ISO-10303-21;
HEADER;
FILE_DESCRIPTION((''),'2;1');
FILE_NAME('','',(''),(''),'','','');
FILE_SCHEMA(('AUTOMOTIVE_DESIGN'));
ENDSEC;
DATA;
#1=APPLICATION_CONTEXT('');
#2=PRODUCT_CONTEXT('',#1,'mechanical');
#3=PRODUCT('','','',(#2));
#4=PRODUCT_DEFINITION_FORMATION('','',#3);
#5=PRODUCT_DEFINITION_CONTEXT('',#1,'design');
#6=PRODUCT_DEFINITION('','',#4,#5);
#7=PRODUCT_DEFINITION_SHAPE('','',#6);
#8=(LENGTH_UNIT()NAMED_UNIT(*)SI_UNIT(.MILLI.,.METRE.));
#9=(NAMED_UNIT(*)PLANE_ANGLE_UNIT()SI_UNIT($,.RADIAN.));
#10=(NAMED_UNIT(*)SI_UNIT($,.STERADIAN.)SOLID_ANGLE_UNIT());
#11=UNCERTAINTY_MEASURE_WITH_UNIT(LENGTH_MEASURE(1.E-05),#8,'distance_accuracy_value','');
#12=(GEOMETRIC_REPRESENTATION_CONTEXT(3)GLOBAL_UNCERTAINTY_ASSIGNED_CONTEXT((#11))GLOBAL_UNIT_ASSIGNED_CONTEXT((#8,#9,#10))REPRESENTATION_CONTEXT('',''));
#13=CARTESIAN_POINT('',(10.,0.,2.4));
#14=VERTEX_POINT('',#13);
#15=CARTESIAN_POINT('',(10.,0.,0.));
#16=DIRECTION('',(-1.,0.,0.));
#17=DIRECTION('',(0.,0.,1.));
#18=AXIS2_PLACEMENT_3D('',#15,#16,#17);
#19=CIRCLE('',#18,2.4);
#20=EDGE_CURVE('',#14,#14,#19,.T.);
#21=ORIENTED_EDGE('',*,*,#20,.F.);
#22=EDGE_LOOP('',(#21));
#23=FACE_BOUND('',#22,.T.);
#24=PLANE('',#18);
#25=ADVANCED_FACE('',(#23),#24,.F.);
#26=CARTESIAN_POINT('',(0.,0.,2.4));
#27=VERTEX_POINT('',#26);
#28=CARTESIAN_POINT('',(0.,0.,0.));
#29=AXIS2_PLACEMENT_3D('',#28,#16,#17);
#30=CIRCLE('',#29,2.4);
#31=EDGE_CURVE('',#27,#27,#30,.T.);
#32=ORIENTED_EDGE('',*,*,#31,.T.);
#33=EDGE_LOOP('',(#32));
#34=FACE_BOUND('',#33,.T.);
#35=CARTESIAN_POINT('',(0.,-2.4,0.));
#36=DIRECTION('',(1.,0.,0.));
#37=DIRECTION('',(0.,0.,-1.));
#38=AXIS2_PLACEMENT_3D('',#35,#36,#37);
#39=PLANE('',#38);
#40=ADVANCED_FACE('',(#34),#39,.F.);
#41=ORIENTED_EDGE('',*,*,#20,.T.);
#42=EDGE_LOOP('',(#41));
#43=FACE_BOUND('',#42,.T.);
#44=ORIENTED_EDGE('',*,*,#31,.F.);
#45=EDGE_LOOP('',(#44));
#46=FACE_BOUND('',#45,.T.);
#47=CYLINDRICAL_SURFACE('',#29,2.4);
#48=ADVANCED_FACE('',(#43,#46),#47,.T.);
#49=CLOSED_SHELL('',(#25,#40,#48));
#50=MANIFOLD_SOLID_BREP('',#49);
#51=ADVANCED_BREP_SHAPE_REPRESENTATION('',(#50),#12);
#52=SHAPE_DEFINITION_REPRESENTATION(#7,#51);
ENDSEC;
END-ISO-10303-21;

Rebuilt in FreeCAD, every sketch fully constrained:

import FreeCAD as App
import Part
import Sketcher
Q = App.Units.Quantity


def add_polygon(sketch, points):
    """Adds a closed chain of lines whose ends are joined by coincident constraints."""
    first, n = sketch.GeometryCount, len(points)
    for a, b in zip(points, points[1:] + points[:1]):
        sketch.addGeometry(Part.LineSegment(App.Vector(*a, 0), App.Vector(*b, 0)), False)
    for i in range(n):
        sketch.addConstraint(Sketcher.Constraint("Coincident", first + i, 2, first + (i + 1) % n, 1))

doc = App.newDocument("Part")
body = doc.addObject("PartDesign::Body", "Body")

# Sketch on XY plane
sketch1 = body.newObject("Sketcher::SketchObject", "Sketch")
sketch1.AttachmentSupport = (doc.getObject("XY_Plane"), [""])
sketch1.MapMode = "FlatFace"
add_polygon(sketch1, [(0, 2.4), (0, 0), (10, 0), (10, 2.4)])  # lines 0-3
sketch1.addConstraint(Sketcher.Constraint("Vertical", 0))
sketch1.addConstraint(Sketcher.Constraint("Horizontal", 1))
sketch1.addConstraint(Sketcher.Constraint("Vertical", 2))
sketch1.addConstraint(Sketcher.Constraint("Horizontal", 3))
sketch1.addConstraint(Sketcher.Constraint("Coincident", 0, 2, -1, 1))
sketch1.addConstraint(Sketcher.Constraint("DistanceX", 1, 1, 1, 2, Q("10 mm")))
sketch1.addConstraint(Sketcher.Constraint("DistanceY", 0, 2, 0, 1, Q("2.4 mm")))
revolution = body.newObject("PartDesign::Revolution", "Revolution")
revolution.Profile = sketch1
revolution.ReferenceAxis = (sketch1, ["H_Axis"])
revolution.Angle = 360

doc.recompute()
